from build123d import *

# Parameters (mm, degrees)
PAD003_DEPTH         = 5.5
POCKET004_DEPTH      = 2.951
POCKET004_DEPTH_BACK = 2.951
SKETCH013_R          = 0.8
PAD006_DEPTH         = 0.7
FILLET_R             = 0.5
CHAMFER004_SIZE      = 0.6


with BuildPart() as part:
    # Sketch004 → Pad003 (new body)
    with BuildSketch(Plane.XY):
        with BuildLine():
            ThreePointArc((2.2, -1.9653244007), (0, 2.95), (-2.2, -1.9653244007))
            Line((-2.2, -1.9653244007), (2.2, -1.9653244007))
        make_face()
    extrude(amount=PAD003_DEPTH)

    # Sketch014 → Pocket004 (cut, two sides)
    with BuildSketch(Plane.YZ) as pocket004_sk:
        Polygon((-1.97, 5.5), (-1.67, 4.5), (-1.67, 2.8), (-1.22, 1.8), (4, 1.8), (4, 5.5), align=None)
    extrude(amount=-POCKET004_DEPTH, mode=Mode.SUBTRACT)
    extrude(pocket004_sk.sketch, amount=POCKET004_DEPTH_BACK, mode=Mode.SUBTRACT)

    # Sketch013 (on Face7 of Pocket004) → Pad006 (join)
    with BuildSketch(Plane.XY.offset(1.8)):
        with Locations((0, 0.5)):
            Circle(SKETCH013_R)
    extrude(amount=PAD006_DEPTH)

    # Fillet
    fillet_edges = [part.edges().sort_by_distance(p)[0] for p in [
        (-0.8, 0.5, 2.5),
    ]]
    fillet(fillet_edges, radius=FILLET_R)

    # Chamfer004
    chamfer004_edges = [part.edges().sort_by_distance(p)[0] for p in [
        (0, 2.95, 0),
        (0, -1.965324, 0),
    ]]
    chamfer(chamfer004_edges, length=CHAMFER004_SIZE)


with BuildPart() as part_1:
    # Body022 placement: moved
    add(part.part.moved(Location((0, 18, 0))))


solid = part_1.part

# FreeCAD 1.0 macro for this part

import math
import FreeCAD as App
import Part
import Sketcher
Q = App.Units.Quantity


def edges_at(feature, points):
    """Names of the edges that pass closest to the given points."""
    edges = feature.Shape.Edges
    near = lambda p: min(range(len(edges)), key=lambda i: edges[i].distToShape(Part.Vertex(*p))[0])
    return sorted({f"Edge{near(p) + 1}" for p in points})


def add_polygon(sketch, points):
    """Adds a closed chain of lines whose ends are joined by coincident constraints."""
    first, n = sketch.GeometryCount, len(points)
    for a, b in zip(points, points[1:] + points[:1]):
        sketch.addGeometry(Part.LineSegment(App.Vector(*a, 0), App.Vector(*b, 0)), False)
    for i in range(n):
        sketch.addConstraint(Sketcher.Constraint("Coincident", first + i, 2, first + (i + 1) % n, 1))

doc = App.newDocument("Part")
body = doc.addObject("PartDesign::Body", "Body")

sketch1 = body.newObject("Sketcher::SketchObject", "Sketch")
sketch1.AttachmentSupport = (doc.getObject("XY_Plane"), [""])
sketch1.MapMode = "FlatFace"
sketch1.addGeometry(Part.ArcOfCircle(Part.Circle(App.Vector(0, 0, 0), App.Vector(0, 0, 1), 3), math.radians(-42), math.radians(222)), False)
sketch1.addGeometry(Part.LineSegment(App.Vector(-2.2, -2, 0), App.Vector(2.2, -2, 0)), False)
sketch1.addConstraint(Sketcher.Constraint("Coincident", 0, 1, 1, 2))
sketch1.addConstraint(Sketcher.Constraint("Coincident", 1, 1, 0, 2))
sketch1.addConstraint(Sketcher.Constraint("Horizontal", 1))
sketch1.addConstraint(Sketcher.Constraint("Coincident", 0, 3, -1, 1))
sketch1.addConstraint(Sketcher.Constraint("Radius", 0, Q("2.95 mm")))
sketch1.addConstraint(Sketcher.Constraint("DistanceX", 1, 1, 1, 2, Q("4.4 mm")))
pad1 = body.newObject("PartDesign::Pad", "Pad")
pad1.Profile = sketch1
pad1.Length = 5.5

sketch2 = body.newObject("Sketcher::SketchObject", "Sketch001")
sketch2.AttachmentSupport = (doc.getObject("YZ_Plane"), [""])
sketch2.MapMode = "FlatFace"
add_polygon(sketch2, [(-2, 5.5), (-1.7, 4.5), (-1.7, 2.8), (-1.2, 1.8), (4, 1.8), (4, 5.5)])
sketch2.addConstraint(Sketcher.Constraint("Vertical", 1))
sketch2.addConstraint(Sketcher.Constraint("Horizontal", 3))
sketch2.addConstraint(Sketcher.Constraint("Vertical", 4))
sketch2.addConstraint(Sketcher.Constraint("Horizontal", 5))
sketch2.addConstraint(Sketcher.Constraint("DistanceY", 1, 2, 1, 1, Q("1.7 mm")))
sketch2.addConstraint(Sketcher.Constraint("DistanceY", 4, 1, 4, 2, Q("3.7 mm")))
sketch2.addConstraint(Sketcher.Constraint("DistanceX", -1, 1, 3, 2, Q("4 mm")))
sketch2.addConstraint(Sketcher.Constraint("DistanceY", 2, 2, 1, 2, Q("1 mm")))
sketch2.addConstraint(Sketcher.Constraint("DistanceX", 3, 1, 3, 2, Q("5.22 mm")))
sketch2.addConstraint(Sketcher.Constraint("DistanceX", 5, 2, 5, 1, Q("5.97 mm")))
sketch2.addConstraint(Sketcher.Constraint("DistanceY", -1, 1, 0, 2, Q("4.5 mm")))
sketch2.addConstraint(Sketcher.Constraint("DistanceX", 5, 2, 0, 2, Q("0.3 mm")))
pocket1 = body.newObject("PartDesign::Pocket", "Pocket")
pocket1.Profile = sketch2
pocket1.Type = "ThroughAll"
pocket1.Midplane = True

sketch3 = body.newObject("Sketcher::SketchObject", "Sketch002")
sketch3.AttachmentSupport = (doc.getObject("XY_Plane"), [""])
sketch3.MapMode = "FlatFace"
sketch3.AttachmentOffset = App.Placement(App.Vector(0, 0, 1.8), App.Rotation())
sketch3.addGeometry(Part.Circle(App.Vector(0, 0.5, 0), App.Vector(0, 0, 1), 0.8), False)
sketch3.addConstraint(Sketcher.Constraint("PointOnObject", 0, 3, -2))
sketch3.addConstraint(Sketcher.Constraint("Diameter", 0, Q("1.6 mm")))
sketch3.addConstraint(Sketcher.Constraint("DistanceY", -1, 1, 0, 3, Q("0.5 mm")))
pad2 = body.newObject("PartDesign::Pad", "Pad001")
pad2.Profile = sketch3
pad2.Length = 0.7
doc.recompute()

fillet = body.newObject("PartDesign::Fillet", "Fillet")
fillet.Base = (pad2, edges_at(pad2, [(-0.8, 0.5, 2.5)]))
fillet.Radius = 0.5
doc.recompute()

chamfer = body.newObject("PartDesign::Chamfer", "Chamfer")
chamfer.Base = (fillet, edges_at(fillet, [(0, 2.95, 0), (0, -1.965, 0)]))
chamfer.Size = 0.6
body2 = doc.addObject("PartDesign::Body", "Body001")
doc.recompute()

body.Placement = App.Placement(App.Vector(0, 18, 0), App.Rotation(App.Vector(0, 0, 1), 0))
boolean = body2.newObject("PartDesign::Boolean", "Boolean")
boolean.Type = "Fuse"
boolean.addObjects([body])

doc.recompute()
